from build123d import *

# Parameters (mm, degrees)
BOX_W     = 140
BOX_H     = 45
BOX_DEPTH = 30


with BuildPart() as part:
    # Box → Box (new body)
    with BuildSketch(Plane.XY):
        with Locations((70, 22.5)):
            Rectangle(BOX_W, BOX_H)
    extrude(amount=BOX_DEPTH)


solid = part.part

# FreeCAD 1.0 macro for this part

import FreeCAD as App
import Part
import Sketcher

doc = App.newDocument("Part")
params = doc.addObject("Spreadsheet::Sheet", "Params")
for row, (alias, value) in enumerate([
    ("sketch1_width", "140 mm"),
    ("sketch1_height", "45 mm"),
    ("pad1_length", "30 mm"),
], start=1):
    params.set(f"A{row}", alias)
    params.set(f"B{row}", "=" + value)
    params.setAlias(f"B{row}", alias)

body = doc.addObject("PartDesign::Body", "Body")

sketch1 = doc.addObject("Sketcher::SketchObject", "Sketch")
body.addObject(sketch1)
sketch1.AttachmentSupport = (doc.XY_Plane, [""])
sketch1.MapMode = "FlatFace"
sketch1.addGeometry([
    Part.LineSegment(App.Vector(0, 45, 0), App.Vector(0, 0, 0)),
    Part.LineSegment(App.Vector(0, 0, 0), App.Vector(140, 0, 0)),
    Part.LineSegment(App.Vector(140, 0, 0), App.Vector(140, 45, 0)),
    Part.LineSegment(App.Vector(140, 45, 0), App.Vector(0, 45, 0)),
], False)
sketch1.addConstraint([
    Sketcher.Constraint("Coincident", 0, 2, 1, 1),
    Sketcher.Constraint("Coincident", 1, 2, 2, 1),
    Sketcher.Constraint("Coincident", 2, 2, 3, 1),
    Sketcher.Constraint("Coincident", 3, 2, 0, 1),
    Sketcher.Constraint("Vertical", 0),
    Sketcher.Constraint("Horizontal", 1),
    Sketcher.Constraint("Vertical", 2),
    Sketcher.Constraint("Horizontal", 3),
    Sketcher.Constraint("Coincident", 0, 2, -1, 1),
    Sketcher.Constraint("DistanceX", 1, 1, 1, 2, 140.0),
    Sketcher.Constraint("DistanceY", 0, 2, 0, 1, 45.0),
])
sketch1.setExpression("Constraints[9]", "Params.sketch1_width")
sketch1.setExpression("Constraints[10]", "Params.sketch1_height")
pad1 = doc.addObject("PartDesign::Pad", "Pad")
body.addObject(pad1)
pad1.Profile = sketch1
pad1.setExpression("Length", "Params.pad1_length")

doc.recompute()
